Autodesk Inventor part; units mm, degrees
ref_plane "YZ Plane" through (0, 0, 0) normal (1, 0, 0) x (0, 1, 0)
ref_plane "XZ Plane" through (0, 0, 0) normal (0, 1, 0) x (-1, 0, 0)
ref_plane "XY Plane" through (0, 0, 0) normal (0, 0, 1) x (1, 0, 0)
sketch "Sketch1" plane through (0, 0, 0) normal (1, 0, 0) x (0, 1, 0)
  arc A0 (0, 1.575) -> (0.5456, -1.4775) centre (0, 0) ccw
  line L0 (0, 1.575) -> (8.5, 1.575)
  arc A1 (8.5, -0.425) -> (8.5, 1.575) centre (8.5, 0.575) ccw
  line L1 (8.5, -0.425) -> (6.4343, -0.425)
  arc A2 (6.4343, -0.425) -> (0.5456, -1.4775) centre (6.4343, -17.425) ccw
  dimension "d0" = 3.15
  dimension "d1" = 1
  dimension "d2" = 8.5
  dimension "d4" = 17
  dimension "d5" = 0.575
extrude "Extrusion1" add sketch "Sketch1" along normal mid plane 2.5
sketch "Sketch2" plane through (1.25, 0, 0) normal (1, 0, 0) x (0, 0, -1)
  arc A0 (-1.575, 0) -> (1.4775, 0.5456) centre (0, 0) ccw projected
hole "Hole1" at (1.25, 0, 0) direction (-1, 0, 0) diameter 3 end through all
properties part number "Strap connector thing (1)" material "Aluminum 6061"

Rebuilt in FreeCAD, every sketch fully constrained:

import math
import FreeCAD as App
import Part
import Sketcher
from FreeCAD import Vector

doc = App.newDocument("Part")
body = doc.addObject("PartDesign::Body", "Body")

# Sketch on YZ plane
sketch1 = doc.addObject("Sketcher::SketchObject", "Sketch")
body.addObject(sketch1)
sketch1.AttachmentSupport = (doc.YZ_Plane, [""])
sketch1.MapMode = "FlatFace"
sketch1.addGeometry(Part.LineSegment(Vector(8.5, 1.575, 0), Vector(0, 1.575, 0)), False)
sketch1.addGeometry(Part.ArcOfCircle(Part.Circle(Vector(0, 0, 0), Vector(0, 0, 1), 1.575), math.radians(90), math.radians(290.267798)), False)
sketch1.addGeometry(Part.ArcOfCircle(Part.Circle(Vector(6.4343, -17.425, 0), Vector(0, 0, 1), 17), math.radians(90), math.radians(110.266938)), False)
sketch1.addGeometry(Part.LineSegment(Vector(6.4343, -0.425, 0), Vector(8.5, -0.425, 0)), False)
sketch1.addGeometry(Part.ArcOfCircle(Part.Circle(Vector(8.5, 0.575, 0), Vector(0, 0, 1), 1), math.radians(-90), math.radians(90)), False)
sketch1.addConstraint(Sketcher.Constraint("Tangent", 0, 2, 1, 1))
sketch1.addConstraint(Sketcher.Constraint("Tangent", 1, 2, 2, 2))
sketch1.addConstraint(Sketcher.Constraint("Tangent", 2, 1, 3, 1))
sketch1.addConstraint(Sketcher.Constraint("Tangent", 3, 2, 4, 1))
sketch1.addConstraint(Sketcher.Constraint("Tangent", 4, 2, 0, 1))
sketch1.addConstraint(Sketcher.Constraint("Horizontal", 0))
sketch1.addConstraint(Sketcher.Constraint("Horizontal", 3))
sketch1.addConstraint(Sketcher.Constraint("Coincident", 1, 3, -1, 1))
sketch1.addConstraint(Sketcher.Constraint("Radius", 2, 17.0))
sketch1.addConstraint(Sketcher.Constraint("Radius", 4, 1.0))
sketch1.addConstraint(Sketcher.Constraint("DistanceX", 0, 2, 0, 1, 8.5))
sketch1.addConstraint(Sketcher.Constraint("Radius", 1, 1.575))
pad1 = doc.addObject("PartDesign::Pad", "Pad")
body.addObject(pad1)
pad1.Profile = sketch1
pad1.Length = 2.5
pad1.Midplane = True

# Sketch on YZ plane
sketch2 = doc.addObject("Sketcher::SketchObject", "Sketch001")
body.addObject(sketch2)
sketch2.AttachmentSupport = (doc.YZ_Plane, [""])
sketch2.MapMode = "FlatFace"
sketch2.AttachmentOffset = App.Placement(Vector(0, 0, 1.25), App.Rotation())
sketch2.addGeometry(Part.Circle(Vector(0, 0, 0), Vector(0, 0, 1), 1.5), False)
sketch2.addConstraint(Sketcher.Constraint("Coincident", 0, 3, -1, 1))
sketch2.addConstraint(Sketcher.Constraint("Diameter", 0, 3.0))
doc.recompute()
hole = doc.addObject("PartDesign::Hole", "Hole")
body.addObject(hole)
hole.Profile = sketch2
hole.ThreadType = "None"
hole.Diameter = 3
hole.DepthType = "ThroughAll"

doc.recompute()
